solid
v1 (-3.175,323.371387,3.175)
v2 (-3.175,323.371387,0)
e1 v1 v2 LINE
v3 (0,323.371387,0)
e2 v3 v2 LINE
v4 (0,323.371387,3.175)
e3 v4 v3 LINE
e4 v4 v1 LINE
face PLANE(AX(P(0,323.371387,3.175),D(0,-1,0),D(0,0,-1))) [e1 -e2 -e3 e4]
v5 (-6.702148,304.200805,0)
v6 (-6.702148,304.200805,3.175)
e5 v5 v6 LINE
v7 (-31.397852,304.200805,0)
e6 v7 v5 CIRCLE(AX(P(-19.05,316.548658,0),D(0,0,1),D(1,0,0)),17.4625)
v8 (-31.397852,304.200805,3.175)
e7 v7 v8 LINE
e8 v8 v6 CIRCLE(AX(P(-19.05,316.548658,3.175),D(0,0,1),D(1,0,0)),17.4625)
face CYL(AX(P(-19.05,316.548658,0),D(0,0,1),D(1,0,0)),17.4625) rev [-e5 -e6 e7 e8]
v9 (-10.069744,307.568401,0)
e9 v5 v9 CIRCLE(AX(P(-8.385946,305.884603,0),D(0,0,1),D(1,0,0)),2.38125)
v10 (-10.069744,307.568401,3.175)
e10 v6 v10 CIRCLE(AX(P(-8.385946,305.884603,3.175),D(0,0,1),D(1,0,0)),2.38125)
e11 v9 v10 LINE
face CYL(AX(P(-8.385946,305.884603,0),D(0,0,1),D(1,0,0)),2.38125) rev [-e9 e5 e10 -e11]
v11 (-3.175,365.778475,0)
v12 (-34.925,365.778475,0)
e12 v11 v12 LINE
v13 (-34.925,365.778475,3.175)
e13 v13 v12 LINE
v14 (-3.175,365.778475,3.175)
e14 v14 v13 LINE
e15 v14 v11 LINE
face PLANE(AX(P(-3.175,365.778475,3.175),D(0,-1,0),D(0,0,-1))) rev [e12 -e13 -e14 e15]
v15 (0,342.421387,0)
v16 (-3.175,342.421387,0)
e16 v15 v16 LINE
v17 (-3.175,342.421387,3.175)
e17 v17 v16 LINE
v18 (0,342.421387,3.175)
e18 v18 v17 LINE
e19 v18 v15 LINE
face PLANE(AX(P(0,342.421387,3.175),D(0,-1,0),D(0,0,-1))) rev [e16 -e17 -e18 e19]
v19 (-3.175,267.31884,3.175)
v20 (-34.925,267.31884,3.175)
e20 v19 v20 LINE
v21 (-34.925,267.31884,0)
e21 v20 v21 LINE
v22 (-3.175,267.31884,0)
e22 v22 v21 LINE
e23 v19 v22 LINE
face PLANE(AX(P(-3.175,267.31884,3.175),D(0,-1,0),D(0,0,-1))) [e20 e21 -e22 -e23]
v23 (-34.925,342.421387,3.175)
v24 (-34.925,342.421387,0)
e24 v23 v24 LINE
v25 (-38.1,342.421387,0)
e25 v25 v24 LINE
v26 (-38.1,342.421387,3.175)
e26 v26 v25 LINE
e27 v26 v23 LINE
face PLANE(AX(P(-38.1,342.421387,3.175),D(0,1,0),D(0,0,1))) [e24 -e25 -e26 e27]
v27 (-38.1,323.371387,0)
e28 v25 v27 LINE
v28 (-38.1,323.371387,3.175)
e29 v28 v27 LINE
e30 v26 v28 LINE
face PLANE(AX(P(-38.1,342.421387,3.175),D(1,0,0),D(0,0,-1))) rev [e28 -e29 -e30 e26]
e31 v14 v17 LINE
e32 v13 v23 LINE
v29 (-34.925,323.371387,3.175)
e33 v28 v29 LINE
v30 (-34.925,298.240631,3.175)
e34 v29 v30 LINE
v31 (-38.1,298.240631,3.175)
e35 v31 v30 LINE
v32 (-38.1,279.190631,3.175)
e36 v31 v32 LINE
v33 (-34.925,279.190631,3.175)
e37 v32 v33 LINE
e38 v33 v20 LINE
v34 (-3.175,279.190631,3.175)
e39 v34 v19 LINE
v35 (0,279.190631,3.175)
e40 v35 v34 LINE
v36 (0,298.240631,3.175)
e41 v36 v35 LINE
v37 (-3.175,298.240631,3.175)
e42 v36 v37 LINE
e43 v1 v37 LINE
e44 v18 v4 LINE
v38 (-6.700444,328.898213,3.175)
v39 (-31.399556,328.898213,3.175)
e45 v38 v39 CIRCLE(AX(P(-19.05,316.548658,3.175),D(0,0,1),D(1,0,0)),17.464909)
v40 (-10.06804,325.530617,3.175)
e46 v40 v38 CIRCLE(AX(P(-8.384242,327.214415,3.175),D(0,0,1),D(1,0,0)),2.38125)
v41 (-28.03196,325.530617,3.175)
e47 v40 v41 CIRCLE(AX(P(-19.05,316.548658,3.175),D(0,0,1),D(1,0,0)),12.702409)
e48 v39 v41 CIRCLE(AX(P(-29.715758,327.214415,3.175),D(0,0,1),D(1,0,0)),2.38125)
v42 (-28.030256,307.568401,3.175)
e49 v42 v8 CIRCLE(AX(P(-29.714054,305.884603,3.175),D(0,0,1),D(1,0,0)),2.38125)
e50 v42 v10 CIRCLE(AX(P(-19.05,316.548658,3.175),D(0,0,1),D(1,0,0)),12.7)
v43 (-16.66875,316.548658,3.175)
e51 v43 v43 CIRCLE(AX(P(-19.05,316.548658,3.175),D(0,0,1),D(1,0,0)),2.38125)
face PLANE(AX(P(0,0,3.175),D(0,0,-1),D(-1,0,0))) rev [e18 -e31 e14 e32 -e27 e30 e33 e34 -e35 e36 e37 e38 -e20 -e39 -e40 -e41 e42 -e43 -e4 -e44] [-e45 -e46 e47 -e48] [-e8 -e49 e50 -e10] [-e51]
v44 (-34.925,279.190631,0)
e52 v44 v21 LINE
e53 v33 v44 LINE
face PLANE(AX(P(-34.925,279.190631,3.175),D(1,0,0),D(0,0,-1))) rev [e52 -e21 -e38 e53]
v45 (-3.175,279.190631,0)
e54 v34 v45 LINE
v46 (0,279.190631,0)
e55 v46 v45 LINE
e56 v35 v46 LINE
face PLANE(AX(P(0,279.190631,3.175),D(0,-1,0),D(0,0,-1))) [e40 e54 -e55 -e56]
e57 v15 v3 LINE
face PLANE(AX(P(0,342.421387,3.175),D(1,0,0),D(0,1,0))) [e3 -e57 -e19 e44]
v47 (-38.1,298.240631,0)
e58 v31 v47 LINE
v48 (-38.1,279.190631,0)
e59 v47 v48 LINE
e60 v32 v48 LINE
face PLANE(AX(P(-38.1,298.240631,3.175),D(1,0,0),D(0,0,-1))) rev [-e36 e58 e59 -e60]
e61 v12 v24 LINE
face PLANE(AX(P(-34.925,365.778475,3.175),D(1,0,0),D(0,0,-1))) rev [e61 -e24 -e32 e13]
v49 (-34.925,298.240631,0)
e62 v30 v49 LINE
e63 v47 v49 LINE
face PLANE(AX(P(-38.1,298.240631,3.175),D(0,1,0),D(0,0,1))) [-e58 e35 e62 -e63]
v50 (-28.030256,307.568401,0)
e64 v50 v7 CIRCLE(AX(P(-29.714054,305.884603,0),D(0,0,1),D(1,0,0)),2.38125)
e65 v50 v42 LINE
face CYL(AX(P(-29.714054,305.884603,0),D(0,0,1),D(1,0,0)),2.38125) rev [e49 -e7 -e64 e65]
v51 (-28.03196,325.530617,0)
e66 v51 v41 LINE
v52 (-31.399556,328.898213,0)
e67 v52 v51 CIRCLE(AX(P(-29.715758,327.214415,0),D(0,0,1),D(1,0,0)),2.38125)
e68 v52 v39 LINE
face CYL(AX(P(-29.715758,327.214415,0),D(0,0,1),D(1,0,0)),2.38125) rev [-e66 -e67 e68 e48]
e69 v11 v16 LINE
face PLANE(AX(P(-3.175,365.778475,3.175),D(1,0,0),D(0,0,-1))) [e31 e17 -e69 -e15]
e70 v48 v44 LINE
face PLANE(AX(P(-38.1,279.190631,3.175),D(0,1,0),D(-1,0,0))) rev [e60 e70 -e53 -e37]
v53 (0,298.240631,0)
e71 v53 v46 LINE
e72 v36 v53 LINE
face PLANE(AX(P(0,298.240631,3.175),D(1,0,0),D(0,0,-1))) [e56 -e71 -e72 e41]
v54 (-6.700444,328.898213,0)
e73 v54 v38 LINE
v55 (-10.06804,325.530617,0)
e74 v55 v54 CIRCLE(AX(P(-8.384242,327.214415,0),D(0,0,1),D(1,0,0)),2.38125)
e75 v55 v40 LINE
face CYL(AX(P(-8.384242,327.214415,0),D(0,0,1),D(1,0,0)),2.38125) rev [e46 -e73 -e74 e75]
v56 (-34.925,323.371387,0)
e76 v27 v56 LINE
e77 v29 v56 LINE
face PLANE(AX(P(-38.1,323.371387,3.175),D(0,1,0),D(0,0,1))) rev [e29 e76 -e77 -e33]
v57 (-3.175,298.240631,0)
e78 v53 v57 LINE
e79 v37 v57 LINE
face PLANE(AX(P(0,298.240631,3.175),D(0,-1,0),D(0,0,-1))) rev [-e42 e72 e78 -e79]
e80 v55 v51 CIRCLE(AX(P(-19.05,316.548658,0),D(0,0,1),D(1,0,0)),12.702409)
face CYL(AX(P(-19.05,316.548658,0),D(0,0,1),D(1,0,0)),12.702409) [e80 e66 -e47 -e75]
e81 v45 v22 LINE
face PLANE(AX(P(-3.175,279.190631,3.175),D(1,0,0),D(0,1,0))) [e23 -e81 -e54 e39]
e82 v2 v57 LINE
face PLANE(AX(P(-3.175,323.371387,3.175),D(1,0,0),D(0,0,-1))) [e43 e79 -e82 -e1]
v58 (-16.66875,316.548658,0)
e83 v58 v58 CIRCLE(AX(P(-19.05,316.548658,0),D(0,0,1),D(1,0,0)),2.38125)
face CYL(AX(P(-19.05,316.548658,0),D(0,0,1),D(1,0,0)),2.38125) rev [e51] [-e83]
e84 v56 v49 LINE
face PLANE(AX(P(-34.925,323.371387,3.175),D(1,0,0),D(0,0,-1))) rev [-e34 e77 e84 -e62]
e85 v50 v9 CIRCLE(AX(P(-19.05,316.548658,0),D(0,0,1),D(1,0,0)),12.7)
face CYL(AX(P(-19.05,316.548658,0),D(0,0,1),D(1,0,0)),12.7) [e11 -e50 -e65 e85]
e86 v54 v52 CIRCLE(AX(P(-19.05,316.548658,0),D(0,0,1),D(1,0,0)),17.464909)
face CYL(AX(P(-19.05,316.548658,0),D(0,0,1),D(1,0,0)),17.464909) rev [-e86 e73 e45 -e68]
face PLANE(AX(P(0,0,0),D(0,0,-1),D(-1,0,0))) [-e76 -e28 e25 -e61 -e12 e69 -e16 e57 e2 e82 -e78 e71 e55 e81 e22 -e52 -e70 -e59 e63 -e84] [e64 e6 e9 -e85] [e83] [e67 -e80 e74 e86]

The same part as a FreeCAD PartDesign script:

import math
import FreeCAD as App
import Part
import Sketcher
Q = App.Units.Quantity

doc = App.newDocument("Part")
body = doc.addObject("PartDesign::Body", "Body")

# Sketch on XY plane
sketch1 = doc.addObject("Sketcher::SketchObject", "Sketch")
body.addObject(sketch1)
sketch1.AttachmentSupport = (doc.XY_Plane, [""])
sketch1.MapMode = "FlatFace"
sketch1.addGeometry([
    Part.LineSegment(App.Vector(-3.2, 365.8, 0), App.Vector(-34.9, 365.8, 0)),  # 0
    Part.LineSegment(App.Vector(-34.9, 365.8, 0), App.Vector(-34.9, 342.4, 0)),  # 1
    Part.LineSegment(App.Vector(-34.9, 342.4, 0), App.Vector(-38.1, 342.4, 0)),  # 2
    Part.LineSegment(App.Vector(-38.1, 342.4, 0), App.Vector(-38.1, 323.4, 0)),  # 3
    Part.LineSegment(App.Vector(-38.1, 323.4, 0), App.Vector(-34.9, 323.4, 0)),  # 4
    Part.LineSegment(App.Vector(-34.9, 323.4, 0), App.Vector(-34.9, 298.2, 0)),  # 5
    Part.LineSegment(App.Vector(-34.9, 298.2, 0), App.Vector(-38.1, 298.2, 0)),  # 6
    Part.LineSegment(App.Vector(-38.1, 298.2, 0), App.Vector(-38.1, 279.2, 0)),  # 7
    Part.LineSegment(App.Vector(-38.1, 279.2, 0), App.Vector(-34.9, 279.2, 0)),  # 8
    Part.LineSegment(App.Vector(-34.9, 279.2, 0), App.Vector(-34.9, 267.3, 0)),  # 9
    Part.LineSegment(App.Vector(-34.9, 267.3, 0), App.Vector(-3.2, 267.3, 0)),  # 10
    Part.LineSegment(App.Vector(-3.2, 267.3, 0), App.Vector(-3.2, 279.2, 0)),  # 11
    Part.LineSegment(App.Vector(-3.2, 279.2, 0), App.Vector(0, 279.2, 0)),  # 12
    Part.LineSegment(App.Vector(0, 279.2, 0), App.Vector(0, 298.2, 0)),  # 13
    Part.LineSegment(App.Vector(0, 298.2, 0), App.Vector(-3.2, 298.2, 0)),  # 14
    Part.LineSegment(App.Vector(-3.2, 298.2, 0), App.Vector(-3.2, 323.4, 0)),  # 15
    Part.LineSegment(App.Vector(-3.2, 323.4, 0), App.Vector(0, 323.4, 0)),  # 16
    Part.LineSegment(App.Vector(0, 323.4, 0), App.Vector(0, 342.4, 0)),  # 17
    Part.LineSegment(App.Vector(0, 342.4, 0), App.Vector(-3.2, 342.4, 0)),  # 18
    Part.LineSegment(App.Vector(-3.2, 342.4, 0), App.Vector(-3.2, 365.8, 0)),  # 19
], False)
sketch1.addConstraint([
    Sketcher.Constraint("Coincident", 0, 2, 1, 1),
    Sketcher.Constraint("Coincident", 1, 2, 2, 1),
    Sketcher.Constraint("Coincident", 2, 2, 3, 1),
    Sketcher.Constraint("Coincident", 3, 2, 4, 1),
    Sketcher.Constraint("Coincident", 4, 2, 5, 1),
    Sketcher.Constraint("Coincident", 5, 2, 6, 1),
    Sketcher.Constraint("Coincident", 6, 2, 7, 1),
    Sketcher.Constraint("Coincident", 7, 2, 8, 1),
    Sketcher.Constraint("Coincident", 8, 2, 9, 1),
    Sketcher.Constraint("Coincident", 9, 2, 10, 1),
    Sketcher.Constraint("Coincident", 10, 2, 11, 1),
    Sketcher.Constraint("Coincident", 11, 2, 12, 1),
    Sketcher.Constraint("Coincident", 12, 2, 13, 1),
    Sketcher.Constraint("Coincident", 13, 2, 14, 1),
    Sketcher.Constraint("Coincident", 14, 2, 15, 1),
    Sketcher.Constraint("Coincident", 15, 2, 16, 1),
    Sketcher.Constraint("Coincident", 16, 2, 17, 1),
    Sketcher.Constraint("Coincident", 17, 2, 18, 1),
    Sketcher.Constraint("Coincident", 18, 2, 19, 1),
    Sketcher.Constraint("Coincident", 19, 2, 0, 1),
    Sketcher.Constraint("Horizontal", 0),
    Sketcher.Constraint("Vertical", 1),
    Sketcher.Constraint("Horizontal", 2),
    Sketcher.Constraint("Vertical", 3),
    Sketcher.Constraint("Horizontal", 4),
    Sketcher.Constraint("Vertical", 5),
    Sketcher.Constraint("Horizontal", 6),
    Sketcher.Constraint("Vertical", 7),
    Sketcher.Constraint("Horizontal", 8),
    Sketcher.Constraint("Vertical", 9),
    Sketcher.Constraint("Horizontal", 10),
    Sketcher.Constraint("Vertical", 11),
    Sketcher.Constraint("Horizontal", 12),
    Sketcher.Constraint("Vertical", 13),
    Sketcher.Constraint("Horizontal", 14),
    Sketcher.Constraint("Vertical", 15),
    Sketcher.Constraint("Horizontal", 16),
    Sketcher.Constraint("Vertical", 17),
    Sketcher.Constraint("Horizontal", 18),
    Sketcher.Constraint("Vertical", 19),
    Sketcher.Constraint("PointOnObject", 12, 2, -2),
    Sketcher.Constraint("PointOnObject", 16, 2, -2),
    Sketcher.Constraint("Horizontal", 8, 2, 11, 2),
    Sketcher.Constraint("Horizontal", 6, 2, 13, 2),
    Sketcher.Constraint("Horizontal", 4, 2, 15, 2),
    Sketcher.Constraint("Horizontal", 2, 2, 17, 2),
    Sketcher.Constraint("Vertical", 1, 2, 4, 2),
    Sketcher.Constraint("Vertical", 3, 2, 6, 2),
    Sketcher.Constraint("Vertical", 5, 2, 8, 2),
    Sketcher.Constraint("Vertical", 11, 2, 14, 2),
    Sketcher.Constraint("Vertical", 15, 2, 18, 2),
    Sketcher.Constraint("Equal", 8, 12),
    Sketcher.Constraint("Equal", 3, 7),
    Sketcher.Constraint("DistanceX", 0, 2, 0, 1, Q("1.25 in")),
    Sketcher.Constraint("DistanceY", 3, 2, 3, 1, Q("0.75 in")),
    Sketcher.Constraint("DistanceX", 2, 2, -1, 1, Q("1.5 in")),
    Sketcher.Constraint("DistanceY", 5, 2, 5, 1, Q("0.9893998 in")),
    Sketcher.Constraint("DistanceY", 1, 2, 1, 1, 23.357089),
    Sketcher.Constraint("DistanceY", 9, 2, 9, 1, 11.871791),
    Sketcher.Constraint("DistanceY", -1, 1, 5, 2, 298.240631),
])
pad1 = doc.addObject("PartDesign::Pad", "Pad")
body.addObject(pad1)
pad1.Profile = sketch1
pad1.Length = Q("0.125 in")

# Sketch on XY plane
sketch2 = doc.addObject("Sketcher::SketchObject", "Sketch001")
body.addObject(sketch2)
sketch2.AttachmentSupport = (doc.XY_Plane, [""])
sketch2.MapMode = "FlatFace"
sketch2.AttachmentOffset = App.Placement(App.Vector(0, 0, 0.125 * 25.4), App.Rotation())
sketch2.addGeometry([
    Part.Circle(App.Vector(-19.1, 316.5, 0), App.Vector(0, 0, 1), 2.4),  # 0
    Part.ArcOfCircle(Part.Circle(App.Vector(-19.1, 316.5, 0), App.Vector(0, 0, 1), 17.5), math.radians(45), math.radians(135)),  # 1
    Part.ArcOfCircle(Part.Circle(App.Vector(-29.7, 327.2, 0), App.Vector(0, 0, 1), 2.4), math.radians(135), math.radians(315)),  # 2
    Part.ArcOfCircle(Part.Circle(App.Vector(-19.1, 316.5, 0), App.Vector(0, 0, 1), 12.7), math.radians(45), math.radians(135)),  # 3
    Part.ArcOfCircle(Part.Circle(App.Vector(-8.4, 327.2, 0), App.Vector(0, 0, 1), 2.4), math.radians(-135), math.radians(45)),  # 4
    Part.ArcOfCircle(Part.Circle(App.Vector(-19.1, 316.5, 0), App.Vector(0, 0, 1), 17.5), math.radians(-135), math.radians(-45)),  # 5
    Part.ArcOfCircle(Part.Circle(App.Vector(-8.4, 305.9, 0), App.Vector(0, 0, 1), 2.4), math.radians(-45), math.radians(135)),  # 6
    Part.ArcOfCircle(Part.Circle(App.Vector(-19.1, 316.5, 0), App.Vector(0, 0, 1), 12.7), math.radians(-135), math.radians(-45)),  # 7
    Part.ArcOfCircle(Part.Circle(App.Vector(-29.7, 305.9, 0), App.Vector(0, 0, 1), 2.4), math.radians(45), math.radians(225)),  # 8
], False)
sketch2.addConstraint([
    Sketcher.Constraint("Tangent", 1, 2, 2, 1),
    Sketcher.Constraint("Tangent", 2, 2, 3, 2),
    Sketcher.Constraint("Tangent", 3, 1, 4, 1),
    Sketcher.Constraint("Tangent", 4, 2, 1, 1),
    Sketcher.Constraint("Tangent", 5, 2, 6, 1),
    Sketcher.Constraint("Tangent", 6, 2, 7, 2),
    Sketcher.Constraint("Tangent", 7, 1, 8, 1),
    Sketcher.Constraint("Tangent", 8, 2, 5, 1),
    Sketcher.Constraint("Coincident", 1, 3, 0, 3),
    Sketcher.Constraint("Coincident", 3, 3, 0, 3),
    Sketcher.Constraint("Coincident", 5, 3, 0, 3),
    Sketcher.Constraint("Coincident", 7, 3, 0, 3),
    Sketcher.Constraint("Equal", 0, 2),
    Sketcher.Constraint("Equal", 4, 6),
    Sketcher.Constraint("Horizontal", 2, 3, 4, 3),
    Sketcher.Constraint("Horizontal", 6, 3, 8, 3),
    Sketcher.Constraint("Radius", 7, Q("0.5 in")),
    Sketcher.Constraint("Diameter", 0, Q("0.1875 in")),
    Sketcher.Constraint("DistanceX", 0, 3, -1, 1, Q("0.75 in")),
    Sketcher.Constraint("Radius", 1, 17.464909),
    Sketcher.Constraint("DistanceY", -1, 1, 6, 2, 307.568401),
    Sketcher.Constraint("DistanceX", 1, 2, 2, 3, 1.683798),
    Sketcher.Constraint("DistanceX", 6, 3, 5, 2, 1.683798),
])
pocket1 = doc.addObject("PartDesign::Pocket", "Pocket")
body.addObject(pocket1)
pocket1.Profile = sketch2
pocket1.Length = Q("0.125 in")

doc.recompute()
